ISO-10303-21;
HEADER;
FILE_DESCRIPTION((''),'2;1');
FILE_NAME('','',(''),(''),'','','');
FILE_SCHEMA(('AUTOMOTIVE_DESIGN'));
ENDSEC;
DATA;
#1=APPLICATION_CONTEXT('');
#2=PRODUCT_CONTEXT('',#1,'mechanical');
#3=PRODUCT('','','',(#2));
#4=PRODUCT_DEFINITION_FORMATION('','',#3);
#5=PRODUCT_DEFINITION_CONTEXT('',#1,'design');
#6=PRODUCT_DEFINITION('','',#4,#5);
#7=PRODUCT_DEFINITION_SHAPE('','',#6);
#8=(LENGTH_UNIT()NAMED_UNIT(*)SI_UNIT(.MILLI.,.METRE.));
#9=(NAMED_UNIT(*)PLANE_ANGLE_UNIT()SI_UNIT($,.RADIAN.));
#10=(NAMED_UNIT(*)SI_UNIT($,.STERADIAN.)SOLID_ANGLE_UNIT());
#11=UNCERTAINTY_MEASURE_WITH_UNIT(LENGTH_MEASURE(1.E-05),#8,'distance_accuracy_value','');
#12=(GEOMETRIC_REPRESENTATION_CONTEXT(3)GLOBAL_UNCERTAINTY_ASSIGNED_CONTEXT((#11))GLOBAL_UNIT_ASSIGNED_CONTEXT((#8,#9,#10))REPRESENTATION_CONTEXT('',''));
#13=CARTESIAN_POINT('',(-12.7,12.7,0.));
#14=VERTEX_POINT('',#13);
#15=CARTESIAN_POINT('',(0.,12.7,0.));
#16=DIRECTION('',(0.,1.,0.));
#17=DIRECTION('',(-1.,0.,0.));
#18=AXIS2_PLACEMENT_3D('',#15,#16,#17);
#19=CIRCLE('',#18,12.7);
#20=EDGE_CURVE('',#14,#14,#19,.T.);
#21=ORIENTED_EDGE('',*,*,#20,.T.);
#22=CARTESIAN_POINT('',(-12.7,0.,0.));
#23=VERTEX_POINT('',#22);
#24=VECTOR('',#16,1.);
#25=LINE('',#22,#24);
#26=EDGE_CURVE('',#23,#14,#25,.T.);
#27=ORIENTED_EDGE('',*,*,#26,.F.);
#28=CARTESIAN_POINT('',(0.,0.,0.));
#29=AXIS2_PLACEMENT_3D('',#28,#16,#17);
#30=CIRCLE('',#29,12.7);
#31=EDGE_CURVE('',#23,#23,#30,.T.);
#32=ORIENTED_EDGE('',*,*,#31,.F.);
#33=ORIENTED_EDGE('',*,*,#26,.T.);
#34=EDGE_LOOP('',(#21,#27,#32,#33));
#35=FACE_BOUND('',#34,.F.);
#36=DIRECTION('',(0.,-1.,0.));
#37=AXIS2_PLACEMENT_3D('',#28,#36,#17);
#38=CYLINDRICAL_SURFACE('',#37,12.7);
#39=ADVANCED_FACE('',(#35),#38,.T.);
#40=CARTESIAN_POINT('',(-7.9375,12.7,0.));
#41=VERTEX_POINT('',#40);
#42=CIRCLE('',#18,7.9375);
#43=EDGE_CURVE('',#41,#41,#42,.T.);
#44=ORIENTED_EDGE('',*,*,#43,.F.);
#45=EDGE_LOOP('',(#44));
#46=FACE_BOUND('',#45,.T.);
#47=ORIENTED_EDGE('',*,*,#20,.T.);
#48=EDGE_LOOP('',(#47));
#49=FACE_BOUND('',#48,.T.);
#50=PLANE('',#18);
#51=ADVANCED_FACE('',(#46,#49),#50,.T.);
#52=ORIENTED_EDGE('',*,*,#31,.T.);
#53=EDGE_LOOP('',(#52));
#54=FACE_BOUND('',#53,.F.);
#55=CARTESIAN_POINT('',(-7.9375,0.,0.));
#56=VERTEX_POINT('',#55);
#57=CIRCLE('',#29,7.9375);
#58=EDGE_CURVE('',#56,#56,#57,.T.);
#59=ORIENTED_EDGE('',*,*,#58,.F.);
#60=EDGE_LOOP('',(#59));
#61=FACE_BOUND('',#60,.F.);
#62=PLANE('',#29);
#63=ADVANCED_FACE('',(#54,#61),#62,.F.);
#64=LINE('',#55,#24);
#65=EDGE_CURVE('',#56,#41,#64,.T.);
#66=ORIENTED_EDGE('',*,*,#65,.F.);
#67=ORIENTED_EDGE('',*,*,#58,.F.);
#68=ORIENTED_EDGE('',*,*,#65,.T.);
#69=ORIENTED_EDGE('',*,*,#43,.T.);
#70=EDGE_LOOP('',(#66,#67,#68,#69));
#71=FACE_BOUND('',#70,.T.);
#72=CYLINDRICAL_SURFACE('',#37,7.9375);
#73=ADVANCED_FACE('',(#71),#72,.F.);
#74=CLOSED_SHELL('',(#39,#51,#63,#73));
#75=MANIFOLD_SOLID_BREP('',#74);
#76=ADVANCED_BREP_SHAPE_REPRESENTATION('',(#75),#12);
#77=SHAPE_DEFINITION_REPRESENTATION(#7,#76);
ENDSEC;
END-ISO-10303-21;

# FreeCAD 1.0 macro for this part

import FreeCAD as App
import Part
import Sketcher
from FreeCAD import Vector
Q = App.Units.Quantity

doc = App.newDocument("Part")
body = doc.addObject("PartDesign::Body", "Body")

sketch1 = body.newObject("Sketcher::SketchObject", "Sketch")
sketch1.AttachmentSupport = (doc.getObject("XZ_Plane"), [""])
sketch1.MapMode = "FlatFace"
sketch1.addGeometry([
    Part.Circle(Vector(0, 0, 0), Vector(0, 0, 1), 13),
    Part.Circle(Vector(0, 0, 0), Vector(0, 0, 1), 8),
], False)
sketch1.addConstraint([
    Sketcher.Constraint("Coincident", 0, 3, -1, 1),
    Sketcher.Constraint("Coincident", 1, 3, -1, 1),
    Sketcher.Constraint("Diameter", 0, Q("1 in")),
    Sketcher.Constraint("Diameter", 1, Q("0.625 in")),
])
pad1 = body.newObject("PartDesign::Pad", "Pad")
pad1.Profile = sketch1
pad1.Length = Q("0.5 in")
pad1.Reversed = True

doc.recompute()
